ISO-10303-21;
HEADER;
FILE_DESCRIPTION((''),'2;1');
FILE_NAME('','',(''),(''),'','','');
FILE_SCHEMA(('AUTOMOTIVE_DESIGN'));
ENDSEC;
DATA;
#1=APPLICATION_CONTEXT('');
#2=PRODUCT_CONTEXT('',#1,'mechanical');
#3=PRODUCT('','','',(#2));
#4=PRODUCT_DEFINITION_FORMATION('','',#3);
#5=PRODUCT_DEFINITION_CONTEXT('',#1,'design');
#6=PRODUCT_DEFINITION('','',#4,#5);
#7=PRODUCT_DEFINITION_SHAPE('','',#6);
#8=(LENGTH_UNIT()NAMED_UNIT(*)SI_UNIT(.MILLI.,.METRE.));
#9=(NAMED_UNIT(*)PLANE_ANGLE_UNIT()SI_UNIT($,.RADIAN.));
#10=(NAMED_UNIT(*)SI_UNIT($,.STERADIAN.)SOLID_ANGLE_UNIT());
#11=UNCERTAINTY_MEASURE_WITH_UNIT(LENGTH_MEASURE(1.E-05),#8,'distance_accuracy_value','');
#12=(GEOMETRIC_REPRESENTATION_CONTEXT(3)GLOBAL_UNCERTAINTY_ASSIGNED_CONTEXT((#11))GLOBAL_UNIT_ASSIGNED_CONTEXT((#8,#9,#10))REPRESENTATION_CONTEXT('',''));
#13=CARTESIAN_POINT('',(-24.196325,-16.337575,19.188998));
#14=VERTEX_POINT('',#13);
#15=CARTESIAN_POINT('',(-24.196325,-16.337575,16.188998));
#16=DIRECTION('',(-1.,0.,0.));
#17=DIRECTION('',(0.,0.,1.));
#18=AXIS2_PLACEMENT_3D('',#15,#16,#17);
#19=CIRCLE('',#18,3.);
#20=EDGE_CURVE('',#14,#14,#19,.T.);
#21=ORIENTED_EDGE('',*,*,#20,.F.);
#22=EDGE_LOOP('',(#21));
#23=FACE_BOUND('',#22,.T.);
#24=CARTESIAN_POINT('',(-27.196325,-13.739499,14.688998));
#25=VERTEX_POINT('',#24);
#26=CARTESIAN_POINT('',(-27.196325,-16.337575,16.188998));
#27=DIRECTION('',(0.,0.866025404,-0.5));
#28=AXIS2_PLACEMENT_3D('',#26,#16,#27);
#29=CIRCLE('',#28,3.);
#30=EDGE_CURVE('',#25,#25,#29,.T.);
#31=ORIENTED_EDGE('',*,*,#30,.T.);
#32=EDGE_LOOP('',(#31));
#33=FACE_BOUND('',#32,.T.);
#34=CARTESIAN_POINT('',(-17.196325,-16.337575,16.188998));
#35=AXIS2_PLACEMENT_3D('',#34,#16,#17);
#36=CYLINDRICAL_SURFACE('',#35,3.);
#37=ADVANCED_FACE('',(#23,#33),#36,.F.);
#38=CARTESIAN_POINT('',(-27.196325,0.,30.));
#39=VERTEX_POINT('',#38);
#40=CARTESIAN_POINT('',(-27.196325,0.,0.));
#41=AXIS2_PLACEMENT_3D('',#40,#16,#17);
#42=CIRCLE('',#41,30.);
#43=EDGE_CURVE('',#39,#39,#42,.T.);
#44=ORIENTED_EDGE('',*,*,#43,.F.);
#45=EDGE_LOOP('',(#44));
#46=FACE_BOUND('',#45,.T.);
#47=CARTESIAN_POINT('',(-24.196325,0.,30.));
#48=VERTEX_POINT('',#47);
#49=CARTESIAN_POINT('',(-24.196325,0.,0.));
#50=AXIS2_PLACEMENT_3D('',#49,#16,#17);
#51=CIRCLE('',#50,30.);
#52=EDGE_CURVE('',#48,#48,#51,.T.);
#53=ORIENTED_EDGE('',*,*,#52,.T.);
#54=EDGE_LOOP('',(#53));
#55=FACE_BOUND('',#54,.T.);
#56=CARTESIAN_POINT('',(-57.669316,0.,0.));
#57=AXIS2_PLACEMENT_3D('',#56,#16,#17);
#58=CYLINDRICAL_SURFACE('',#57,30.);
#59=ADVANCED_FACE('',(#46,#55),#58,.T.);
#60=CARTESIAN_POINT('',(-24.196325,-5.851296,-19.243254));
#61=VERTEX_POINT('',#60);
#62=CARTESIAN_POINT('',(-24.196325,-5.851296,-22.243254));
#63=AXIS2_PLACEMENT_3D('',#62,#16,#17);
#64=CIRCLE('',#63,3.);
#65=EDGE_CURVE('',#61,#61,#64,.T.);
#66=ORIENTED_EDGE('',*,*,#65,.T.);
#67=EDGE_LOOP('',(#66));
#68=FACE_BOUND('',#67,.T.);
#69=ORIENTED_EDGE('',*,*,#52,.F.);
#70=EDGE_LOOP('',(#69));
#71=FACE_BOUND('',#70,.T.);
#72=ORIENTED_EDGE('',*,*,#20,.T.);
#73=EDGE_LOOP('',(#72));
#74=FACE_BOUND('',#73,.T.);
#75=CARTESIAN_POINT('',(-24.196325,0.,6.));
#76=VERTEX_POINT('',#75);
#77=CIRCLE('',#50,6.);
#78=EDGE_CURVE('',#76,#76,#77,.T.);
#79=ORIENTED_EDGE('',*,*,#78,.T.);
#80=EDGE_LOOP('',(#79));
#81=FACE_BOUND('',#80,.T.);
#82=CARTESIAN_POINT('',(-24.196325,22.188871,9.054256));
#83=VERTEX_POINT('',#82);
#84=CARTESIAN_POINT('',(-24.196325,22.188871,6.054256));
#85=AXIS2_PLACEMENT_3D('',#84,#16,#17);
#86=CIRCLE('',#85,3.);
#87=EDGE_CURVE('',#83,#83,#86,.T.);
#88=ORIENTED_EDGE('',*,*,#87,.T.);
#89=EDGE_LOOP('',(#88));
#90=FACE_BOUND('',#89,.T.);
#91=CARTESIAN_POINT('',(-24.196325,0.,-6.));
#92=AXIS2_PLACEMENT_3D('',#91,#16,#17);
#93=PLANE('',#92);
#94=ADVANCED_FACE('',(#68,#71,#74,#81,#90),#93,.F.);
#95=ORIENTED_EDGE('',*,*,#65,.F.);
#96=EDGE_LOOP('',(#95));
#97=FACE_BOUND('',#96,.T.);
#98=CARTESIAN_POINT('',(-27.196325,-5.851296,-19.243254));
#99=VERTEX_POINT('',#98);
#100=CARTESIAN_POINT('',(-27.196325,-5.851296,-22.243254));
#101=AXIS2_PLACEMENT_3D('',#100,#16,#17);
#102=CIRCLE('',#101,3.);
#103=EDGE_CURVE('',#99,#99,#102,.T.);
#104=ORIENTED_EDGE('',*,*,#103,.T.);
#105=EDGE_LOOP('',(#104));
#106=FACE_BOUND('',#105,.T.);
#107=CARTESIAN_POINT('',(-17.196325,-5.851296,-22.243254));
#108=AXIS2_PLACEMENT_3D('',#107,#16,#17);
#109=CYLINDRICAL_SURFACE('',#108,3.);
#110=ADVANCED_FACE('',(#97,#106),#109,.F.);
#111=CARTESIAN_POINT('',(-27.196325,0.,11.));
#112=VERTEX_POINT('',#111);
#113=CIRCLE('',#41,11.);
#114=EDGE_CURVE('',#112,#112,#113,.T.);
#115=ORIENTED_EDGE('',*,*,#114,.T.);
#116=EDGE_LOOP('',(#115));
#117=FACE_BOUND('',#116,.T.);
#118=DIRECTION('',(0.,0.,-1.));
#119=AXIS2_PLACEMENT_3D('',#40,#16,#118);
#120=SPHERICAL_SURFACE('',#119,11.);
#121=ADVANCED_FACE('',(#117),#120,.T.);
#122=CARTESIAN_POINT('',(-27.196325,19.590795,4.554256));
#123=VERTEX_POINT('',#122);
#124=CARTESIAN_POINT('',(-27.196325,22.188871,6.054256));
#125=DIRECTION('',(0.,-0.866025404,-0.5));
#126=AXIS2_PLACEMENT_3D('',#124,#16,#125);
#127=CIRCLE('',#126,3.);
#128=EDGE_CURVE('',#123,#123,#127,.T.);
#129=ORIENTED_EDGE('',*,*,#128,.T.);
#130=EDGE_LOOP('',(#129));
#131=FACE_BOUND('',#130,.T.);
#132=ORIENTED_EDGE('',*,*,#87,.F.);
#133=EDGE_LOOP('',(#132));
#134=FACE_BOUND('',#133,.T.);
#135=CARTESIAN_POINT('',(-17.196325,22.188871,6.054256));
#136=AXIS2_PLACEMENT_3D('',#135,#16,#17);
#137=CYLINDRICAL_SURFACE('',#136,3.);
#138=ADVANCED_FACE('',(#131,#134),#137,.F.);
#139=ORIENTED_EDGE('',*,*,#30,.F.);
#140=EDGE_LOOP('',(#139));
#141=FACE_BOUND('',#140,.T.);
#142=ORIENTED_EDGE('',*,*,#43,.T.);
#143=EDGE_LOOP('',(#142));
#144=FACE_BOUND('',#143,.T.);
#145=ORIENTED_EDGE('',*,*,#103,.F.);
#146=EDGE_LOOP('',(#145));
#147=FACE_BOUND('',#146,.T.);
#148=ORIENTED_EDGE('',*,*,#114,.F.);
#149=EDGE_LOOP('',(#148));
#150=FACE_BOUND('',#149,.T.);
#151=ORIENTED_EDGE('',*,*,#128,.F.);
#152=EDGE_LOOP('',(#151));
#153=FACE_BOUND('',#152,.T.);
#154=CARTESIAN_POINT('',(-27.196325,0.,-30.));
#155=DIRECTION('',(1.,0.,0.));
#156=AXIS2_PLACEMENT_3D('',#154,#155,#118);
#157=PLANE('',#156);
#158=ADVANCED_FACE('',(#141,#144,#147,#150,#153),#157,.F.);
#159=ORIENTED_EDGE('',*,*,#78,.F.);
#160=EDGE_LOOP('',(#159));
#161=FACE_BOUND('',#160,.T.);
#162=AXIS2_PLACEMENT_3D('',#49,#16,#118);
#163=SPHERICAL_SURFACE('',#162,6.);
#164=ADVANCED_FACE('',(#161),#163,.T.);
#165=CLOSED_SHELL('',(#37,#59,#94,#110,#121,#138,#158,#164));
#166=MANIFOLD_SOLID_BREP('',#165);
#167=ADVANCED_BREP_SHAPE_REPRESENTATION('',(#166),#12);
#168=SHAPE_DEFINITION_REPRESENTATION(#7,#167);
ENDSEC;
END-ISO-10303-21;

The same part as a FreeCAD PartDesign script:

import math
import FreeCAD as App
import Part
import Sketcher
from FreeCAD import Vector

doc = App.newDocument("Part")
body = doc.addObject("PartDesign::Body", "Body")

# Sketch on XZ plane
sketch1 = doc.addObject("Sketcher::SketchObject", "Sketch")
body.addObject(sketch1)
sketch1.AttachmentSupport = (doc.XZ_Plane, [""])
sketch1.MapMode = "FlatFace"
sketch1.addGeometry([
    Part.LineSegment(Vector(-24.196325, -6, 0), Vector(-24.196325, -30, 0)),  # 0
    Part.LineSegment(Vector(-24.196325, -30, 0), Vector(-27.196325, -30, 0)),  # 1
    Part.LineSegment(Vector(-27.196325, -30, 0), Vector(-27.196325, -11, 0)),  # 2
    Part.ArcOfCircle(Part.Circle(Vector(-27.196325, 0, 0), Vector(0, 0, 1), 11), math.radians(180), math.radians(270)),  # 3
    Part.LineSegment(Vector(-38.196325, 0, 0), Vector(-18.196325, 0, 0)),  # 4
    Part.ArcOfCircle(Part.Circle(Vector(-24.196325, 0, 0), Vector(0, 0, 1), 6), math.radians(-90), math.radians(0)),  # 5
], False)
sketch1.addConstraint([
    Sketcher.Constraint("Coincident", 0, 2, 1, 1),
    Sketcher.Constraint("Coincident", 1, 2, 2, 1),
    Sketcher.Constraint("Coincident", 2, 2, 3, 2),
    Sketcher.Constraint("Coincident", 3, 1, 4, 1),
    Sketcher.Constraint("Coincident", 4, 2, 5, 2),
    Sketcher.Constraint("Coincident", 5, 1, 0, 1),
    Sketcher.Constraint("Vertical", 0),
    Sketcher.Constraint("Horizontal", 1),
    Sketcher.Constraint("Vertical", 2),
    Sketcher.Constraint("Horizontal", 4),
    Sketcher.Constraint("PointOnObject", 3, 3, -1),
    Sketcher.Constraint("PointOnObject", 5, 3, -1),
    Sketcher.Constraint("PointOnObject", 3, 1, -1),
    Sketcher.Constraint("Vertical", 5, 3, 0, 2),
    Sketcher.Constraint("Vertical", 3, 3, 1, 2),
    Sketcher.Constraint("Radius", 3, 11.0),
    Sketcher.Constraint("Radius", 5, 6.0),
    Sketcher.Constraint("DistanceX", 1, 2, 1, 1, 3.0),
    Sketcher.Constraint("DistanceY", 0, 2, 0, 1, 24.0),
    Sketcher.Constraint("DistanceX", 3, 3, -1, 1, 27.196325),
])
revolution = doc.addObject("PartDesign::Revolution", "Revolution")
body.addObject(revolution)
revolution.Profile = sketch1
revolution.ReferenceAxis = (sketch1, ["H_Axis"])
revolution.Angle = 360

# Sketch on YZ plane
sketch2 = doc.addObject("Sketcher::SketchObject", "Sketch001")
body.addObject(sketch2)
sketch2.AttachmentSupport = (doc.YZ_Plane, [""])
sketch2.MapMode = "FlatFace"
sketch2.AttachmentOffset = App.Placement(Vector(0, 0, -27.196325), App.Rotation())
sketch2.addGeometry(Part.Circle(Vector(-5.851296, -22.243254, 0), Vector(0, 0, 1), 3), False)
sketch2.addConstraint([
    Sketcher.Constraint("Diameter", 0, 6.0),
    Sketcher.Constraint("DistanceX", 0, 3, -1, 1, 5.851296),
    Sketcher.Constraint("DistanceY", 0, 3, -1, 1, 22.243254),
])
pocket1 = doc.addObject("PartDesign::Pocket", "Pocket")
body.addObject(pocket1)
pocket1.Profile = sketch2
pocket1.Length = 10
pocket1.Reversed = True
doc.recompute()

polarpattern = doc.addObject("PartDesign::PolarPattern", "PolarPattern")
body.addObject(polarpattern)
polarpattern.Originals = [pocket1]
polarpattern.Axis = (doc.X_Axis, [""])
polarpattern.Angle = 360
polarpattern.Occurrences = 3
body.Tip = polarpattern

doc.recompute()
